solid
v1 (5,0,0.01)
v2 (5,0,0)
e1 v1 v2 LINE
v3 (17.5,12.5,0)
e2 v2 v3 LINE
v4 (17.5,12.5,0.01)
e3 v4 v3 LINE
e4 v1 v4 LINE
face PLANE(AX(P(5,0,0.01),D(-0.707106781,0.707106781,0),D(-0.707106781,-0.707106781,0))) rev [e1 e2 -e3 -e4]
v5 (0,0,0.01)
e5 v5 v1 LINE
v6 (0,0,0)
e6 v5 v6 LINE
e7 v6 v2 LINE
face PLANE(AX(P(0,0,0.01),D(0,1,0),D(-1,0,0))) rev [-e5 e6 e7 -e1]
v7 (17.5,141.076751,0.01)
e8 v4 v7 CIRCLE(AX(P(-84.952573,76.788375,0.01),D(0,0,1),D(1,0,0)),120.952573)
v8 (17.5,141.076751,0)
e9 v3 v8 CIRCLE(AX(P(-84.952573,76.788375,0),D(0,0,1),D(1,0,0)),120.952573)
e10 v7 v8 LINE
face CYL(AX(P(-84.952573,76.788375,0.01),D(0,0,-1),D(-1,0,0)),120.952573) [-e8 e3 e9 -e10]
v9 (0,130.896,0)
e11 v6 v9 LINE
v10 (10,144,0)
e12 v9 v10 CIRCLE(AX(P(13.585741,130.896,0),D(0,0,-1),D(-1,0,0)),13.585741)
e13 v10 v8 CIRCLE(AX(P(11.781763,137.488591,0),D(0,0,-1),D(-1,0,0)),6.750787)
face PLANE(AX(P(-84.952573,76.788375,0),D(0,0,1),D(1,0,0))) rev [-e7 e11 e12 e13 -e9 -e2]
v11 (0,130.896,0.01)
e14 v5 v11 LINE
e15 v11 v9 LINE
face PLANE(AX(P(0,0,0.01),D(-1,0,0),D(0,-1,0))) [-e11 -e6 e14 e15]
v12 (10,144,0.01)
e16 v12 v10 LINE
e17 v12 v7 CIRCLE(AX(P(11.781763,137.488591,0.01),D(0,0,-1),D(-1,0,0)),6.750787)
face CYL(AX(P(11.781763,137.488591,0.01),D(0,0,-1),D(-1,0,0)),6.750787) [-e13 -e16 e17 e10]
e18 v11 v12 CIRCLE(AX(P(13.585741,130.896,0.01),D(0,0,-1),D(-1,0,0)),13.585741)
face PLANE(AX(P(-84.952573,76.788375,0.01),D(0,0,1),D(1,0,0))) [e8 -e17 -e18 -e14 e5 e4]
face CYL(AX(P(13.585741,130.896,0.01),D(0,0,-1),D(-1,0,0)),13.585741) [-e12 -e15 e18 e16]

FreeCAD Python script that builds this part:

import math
import FreeCAD as App
import Part
import Sketcher
Q = App.Units.Quantity

doc = App.newDocument("Part")
body = doc.addObject("PartDesign::Body", "Body")

sketch1 = doc.addObject("Sketcher::SketchObject", "Sketch")
body.addObject(sketch1)
sketch1.AttachmentSupport = (doc.XY_Plane, [""])
sketch1.MapMode = "FlatFace"
sketch1.addGeometry(Part.LineSegment(App.Vector(0, 130.896, 0), App.Vector(0, 0, 0)), False)
sketch1.addGeometry(Part.LineSegment(App.Vector(0, 0, 0), App.Vector(5, 0, 0)), False)
sketch1.addGeometry(Part.LineSegment(App.Vector(5, 0, 0), App.Vector(17.5, 12.5, 0)), False)
sketch1.addGeometry(Part.ArcOfCircle(Part.Circle(App.Vector(-84.952573, 76.788375, 0), App.Vector(0, 0, 1), 120.952573), math.radians(-32.108025), math.radians(32.108025)), False)
sketch1.addGeometry(Part.ArcOfCircle(Part.Circle(App.Vector(11.781763, 137.488591, 0), App.Vector(0, 0, 1), 6.750787), math.radians(32.108025), math.radians(105.303629)), False)
sketch1.addGeometry(Part.ArcOfCircle(Part.Circle(App.Vector(13.585741, 130.896, 0), App.Vector(0, 0, 1), 13.585741), math.radians(105.303629), math.radians(180)), False)
sketch1.addConstraint(Sketcher.Constraint("Coincident", 0, 2, 1, 1))
sketch1.addConstraint(Sketcher.Constraint("Coincident", 1, 2, 2, 1))
sketch1.addConstraint(Sketcher.Constraint("Coincident", 2, 2, 3, 1))
sketch1.addConstraint(Sketcher.Constraint("Tangent", 3, 2, 4, 1))
sketch1.addConstraint(Sketcher.Constraint("Tangent", 4, 2, 5, 1))
sketch1.addConstraint(Sketcher.Constraint("Tangent", 5, 2, 0, 1))
sketch1.addConstraint(Sketcher.Constraint("Vertical", 0))
sketch1.addConstraint(Sketcher.Constraint("Horizontal", 1))
sketch1.addConstraint(Sketcher.Constraint("Coincident", 0, 2, -1, 1))
sketch1.addConstraint(Sketcher.Constraint("Vertical", 2, 2, 3, 2))
sketch1.addConstraint(Sketcher.Constraint("DistanceX", 1, 1, 1, 2, Q("5 mm")))
sketch1.addConstraint(Sketcher.Constraint("Angle", 2, Q("45 deg")))
sketch1.addConstraint(Sketcher.Constraint("DistanceX", -1, 1, 4, 2, Q("10 mm")))
sketch1.addConstraint(Sketcher.Constraint("DistanceY", -1, 1, 4, 2, Q("144 mm")))
sketch1.addConstraint(Sketcher.Constraint("DistanceX", -1, 1, 2, 2, Q("17.5 mm")))
sketch1.addConstraint(Sketcher.Constraint("DistanceY", 0, 2, 0, 1, Q("130.896 mm")))
sketch1.addConstraint(Sketcher.Constraint("Radius", 3, Q("120.952573 mm")))
pad1 = doc.addObject("PartDesign::Pad", "Pad")
body.addObject(pad1)
pad1.Profile = sketch1
pad1.Length = 0.01

doc.recompute()
